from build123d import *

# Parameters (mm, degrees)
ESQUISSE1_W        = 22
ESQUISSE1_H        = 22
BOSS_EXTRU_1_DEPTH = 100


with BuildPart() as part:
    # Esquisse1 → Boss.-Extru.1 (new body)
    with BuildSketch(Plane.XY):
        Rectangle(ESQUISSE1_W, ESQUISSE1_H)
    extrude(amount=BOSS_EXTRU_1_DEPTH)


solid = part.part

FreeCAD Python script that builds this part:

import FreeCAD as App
import Part
import Sketcher

V = App.Vector
Q = App.Units.Quantity


def add_polygon(sketch, points):
    """Adds a closed chain of lines whose ends are joined by coincident constraints."""
    first, n = sketch.GeometryCount, len(points)
    for a, b in zip(points, points[1:] + points[:1]):
        sketch.addGeometry(Part.LineSegment(App.Vector(*a, 0), App.Vector(*b, 0)), False)
    for i in range(n):
        sketch.addConstraint(Sketcher.Constraint("Coincident", first + i, 2, first + (i + 1) % n, 1))

doc = App.newDocument("Part")
body = doc.addObject("PartDesign::Body", "Body")

# Sketch on XY plane
sketch1 = doc.addObject("Sketcher::SketchObject", "Sketch")
body.addObject(sketch1)
sketch1.AttachmentSupport = (doc.XY_Plane, [""])
sketch1.MapMode = "FlatFace"
add_polygon(sketch1, [(-11, 11), (-11, -11), (11, -11), (11, 11)])  # lines 0-3
sketch1.addConstraint(Sketcher.Constraint("Vertical", 0))
sketch1.addConstraint(Sketcher.Constraint("Horizontal", 1))
sketch1.addConstraint(Sketcher.Constraint("Vertical", 2))
sketch1.addConstraint(Sketcher.Constraint("Horizontal", 3))
sketch1.addConstraint(Sketcher.Constraint("Symmetric", 0, 2, 2, 2, -1, 1))
sketch1.addConstraint(Sketcher.Constraint("Equal", 3, 0))
sketch1.addConstraint(Sketcher.Constraint("DistanceX", 1, 1, 1, 2, Q("22 mm")))
pad1 = doc.addObject("PartDesign::Pad", "Pad")
body.addObject(pad1)
pad1.Profile = sketch1
pad1.Length = 100

doc.recompute()
